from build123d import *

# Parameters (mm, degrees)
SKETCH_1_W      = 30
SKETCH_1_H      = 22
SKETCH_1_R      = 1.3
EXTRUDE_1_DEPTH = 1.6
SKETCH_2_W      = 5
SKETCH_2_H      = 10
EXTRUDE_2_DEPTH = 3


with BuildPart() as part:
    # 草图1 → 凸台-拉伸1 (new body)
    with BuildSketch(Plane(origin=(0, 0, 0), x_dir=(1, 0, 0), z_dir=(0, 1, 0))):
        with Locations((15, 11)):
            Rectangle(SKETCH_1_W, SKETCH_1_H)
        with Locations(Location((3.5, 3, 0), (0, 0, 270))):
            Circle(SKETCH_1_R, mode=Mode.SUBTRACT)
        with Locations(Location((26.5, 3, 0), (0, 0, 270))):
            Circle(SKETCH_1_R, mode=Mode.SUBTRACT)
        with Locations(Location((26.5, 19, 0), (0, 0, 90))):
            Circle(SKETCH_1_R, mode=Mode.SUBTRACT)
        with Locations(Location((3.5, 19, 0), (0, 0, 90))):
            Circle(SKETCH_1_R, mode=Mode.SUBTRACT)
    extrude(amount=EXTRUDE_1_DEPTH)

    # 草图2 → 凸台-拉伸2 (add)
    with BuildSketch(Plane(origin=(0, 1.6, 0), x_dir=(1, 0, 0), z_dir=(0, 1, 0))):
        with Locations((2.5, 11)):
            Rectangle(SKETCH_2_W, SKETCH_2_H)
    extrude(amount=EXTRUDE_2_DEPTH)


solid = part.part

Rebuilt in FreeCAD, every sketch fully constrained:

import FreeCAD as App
import Part
import Sketcher
from FreeCAD import Vector
Q = App.Units.Quantity


def add_polygon(sketch, points):
    """Adds a closed chain of lines whose ends are joined by coincident constraints."""
    first, n = sketch.GeometryCount, len(points)
    for a, b in zip(points, points[1:] + points[:1]):
        sketch.addGeometry(Part.LineSegment(App.Vector(*a, 0), App.Vector(*b, 0)), False)
    for i in range(n):
        sketch.addConstraint(Sketcher.Constraint("Coincident", first + i, 2, first + (i + 1) % n, 1))

doc = App.newDocument("Part")
body = doc.addObject("PartDesign::Body", "Body")

sketch1 = body.newObject("Sketcher::SketchObject", "Sketch")
sketch1.AttachmentSupport = (doc.getObject("XZ_Plane"), [""])
sketch1.MapMode = "FlatFace"
add_polygon(sketch1, [(0, -22), (0, 0), (30, 0), (30, -22)])
sketch1.addGeometry(Part.Circle(Vector(3.5, -3, 0), Vector(0, 0, 1), 1.3), False)
sketch1.addGeometry(Part.Circle(Vector(26.5, -3, 0), Vector(0, 0, 1), 1.3), False)
sketch1.addGeometry(Part.Circle(Vector(3.5, -19, 0), Vector(0, 0, 1), 1.3), False)
sketch1.addGeometry(Part.Circle(Vector(26.5, -19, 0), Vector(0, 0, 1), 1.3), False)
sketch1.addConstraint([
    Sketcher.Constraint("Vertical", 0),
    Sketcher.Constraint("Horizontal", 1),
    Sketcher.Constraint("Vertical", 2),
    Sketcher.Constraint("Horizontal", 3),
    Sketcher.Constraint("Coincident", 0, 2, -1, 1),
    Sketcher.Constraint("Equal", 4, 5),
    Sketcher.Constraint("Equal", 5, 6),
    Sketcher.Constraint("Equal", 6, 7),
    Sketcher.Constraint("Horizontal", 4, 3, 5, 3),
    Sketcher.Constraint("Horizontal", 6, 3, 7, 3),
    Sketcher.Constraint("Vertical", 4, 3, 6, 3),
    Sketcher.Constraint("Vertical", 5, 3, 7, 3),
    Sketcher.Constraint("Diameter", 4, Q("2.6 mm")),
    Sketcher.Constraint("DistanceX", 1, 1, 1, 2, Q("30 mm")),
    Sketcher.Constraint("DistanceY", 0, 1, 0, 2, Q("22 mm")),
    Sketcher.Constraint("DistanceY", 4, 3, -1, 1, Q("3 mm")),
    Sketcher.Constraint("DistanceY", 6, 3, -1, 1, Q("19 mm")),
    Sketcher.Constraint("DistanceX", 4, 3, 5, 3, Q("23 mm")),
    Sketcher.Constraint("DistanceX", -1, 1, 4, 3, Q("3.5 mm")),
])
pad1 = body.newObject("PartDesign::Pad", "Pad")
pad1.Profile = sketch1
pad1.Length = 1.6
pad1.Reversed = True

sketch2 = body.newObject("Sketcher::SketchObject", "Sketch001")
sketch2.AttachmentSupport = (doc.getObject("XZ_Plane"), [""])
sketch2.MapMode = "FlatFace"
sketch2.AttachmentOffset = App.Placement(Vector(0, 0, -1.6), App.Rotation())
add_polygon(sketch2, [(0, -16), (0, -6), (5, -6), (5, -16)])
sketch2.addConstraint([
    Sketcher.Constraint("Vertical", 0),
    Sketcher.Constraint("Horizontal", 1),
    Sketcher.Constraint("Vertical", 2),
    Sketcher.Constraint("Horizontal", 3),
    Sketcher.Constraint("PointOnObject", 0, 2, -2),
    Sketcher.Constraint("DistanceX", 1, 1, 1, 2, Q("5 mm")),
    Sketcher.Constraint("DistanceY", 0, 1, 0, 2, Q("10 mm")),
    Sketcher.Constraint("DistanceY", 0, 2, -1, 1, Q("6 mm")),
])
pad2 = body.newObject("PartDesign::Pad", "Pad001")
pad2.Profile = sketch2
pad2.Length = 3
pad2.Reversed = True

doc.recompute()
